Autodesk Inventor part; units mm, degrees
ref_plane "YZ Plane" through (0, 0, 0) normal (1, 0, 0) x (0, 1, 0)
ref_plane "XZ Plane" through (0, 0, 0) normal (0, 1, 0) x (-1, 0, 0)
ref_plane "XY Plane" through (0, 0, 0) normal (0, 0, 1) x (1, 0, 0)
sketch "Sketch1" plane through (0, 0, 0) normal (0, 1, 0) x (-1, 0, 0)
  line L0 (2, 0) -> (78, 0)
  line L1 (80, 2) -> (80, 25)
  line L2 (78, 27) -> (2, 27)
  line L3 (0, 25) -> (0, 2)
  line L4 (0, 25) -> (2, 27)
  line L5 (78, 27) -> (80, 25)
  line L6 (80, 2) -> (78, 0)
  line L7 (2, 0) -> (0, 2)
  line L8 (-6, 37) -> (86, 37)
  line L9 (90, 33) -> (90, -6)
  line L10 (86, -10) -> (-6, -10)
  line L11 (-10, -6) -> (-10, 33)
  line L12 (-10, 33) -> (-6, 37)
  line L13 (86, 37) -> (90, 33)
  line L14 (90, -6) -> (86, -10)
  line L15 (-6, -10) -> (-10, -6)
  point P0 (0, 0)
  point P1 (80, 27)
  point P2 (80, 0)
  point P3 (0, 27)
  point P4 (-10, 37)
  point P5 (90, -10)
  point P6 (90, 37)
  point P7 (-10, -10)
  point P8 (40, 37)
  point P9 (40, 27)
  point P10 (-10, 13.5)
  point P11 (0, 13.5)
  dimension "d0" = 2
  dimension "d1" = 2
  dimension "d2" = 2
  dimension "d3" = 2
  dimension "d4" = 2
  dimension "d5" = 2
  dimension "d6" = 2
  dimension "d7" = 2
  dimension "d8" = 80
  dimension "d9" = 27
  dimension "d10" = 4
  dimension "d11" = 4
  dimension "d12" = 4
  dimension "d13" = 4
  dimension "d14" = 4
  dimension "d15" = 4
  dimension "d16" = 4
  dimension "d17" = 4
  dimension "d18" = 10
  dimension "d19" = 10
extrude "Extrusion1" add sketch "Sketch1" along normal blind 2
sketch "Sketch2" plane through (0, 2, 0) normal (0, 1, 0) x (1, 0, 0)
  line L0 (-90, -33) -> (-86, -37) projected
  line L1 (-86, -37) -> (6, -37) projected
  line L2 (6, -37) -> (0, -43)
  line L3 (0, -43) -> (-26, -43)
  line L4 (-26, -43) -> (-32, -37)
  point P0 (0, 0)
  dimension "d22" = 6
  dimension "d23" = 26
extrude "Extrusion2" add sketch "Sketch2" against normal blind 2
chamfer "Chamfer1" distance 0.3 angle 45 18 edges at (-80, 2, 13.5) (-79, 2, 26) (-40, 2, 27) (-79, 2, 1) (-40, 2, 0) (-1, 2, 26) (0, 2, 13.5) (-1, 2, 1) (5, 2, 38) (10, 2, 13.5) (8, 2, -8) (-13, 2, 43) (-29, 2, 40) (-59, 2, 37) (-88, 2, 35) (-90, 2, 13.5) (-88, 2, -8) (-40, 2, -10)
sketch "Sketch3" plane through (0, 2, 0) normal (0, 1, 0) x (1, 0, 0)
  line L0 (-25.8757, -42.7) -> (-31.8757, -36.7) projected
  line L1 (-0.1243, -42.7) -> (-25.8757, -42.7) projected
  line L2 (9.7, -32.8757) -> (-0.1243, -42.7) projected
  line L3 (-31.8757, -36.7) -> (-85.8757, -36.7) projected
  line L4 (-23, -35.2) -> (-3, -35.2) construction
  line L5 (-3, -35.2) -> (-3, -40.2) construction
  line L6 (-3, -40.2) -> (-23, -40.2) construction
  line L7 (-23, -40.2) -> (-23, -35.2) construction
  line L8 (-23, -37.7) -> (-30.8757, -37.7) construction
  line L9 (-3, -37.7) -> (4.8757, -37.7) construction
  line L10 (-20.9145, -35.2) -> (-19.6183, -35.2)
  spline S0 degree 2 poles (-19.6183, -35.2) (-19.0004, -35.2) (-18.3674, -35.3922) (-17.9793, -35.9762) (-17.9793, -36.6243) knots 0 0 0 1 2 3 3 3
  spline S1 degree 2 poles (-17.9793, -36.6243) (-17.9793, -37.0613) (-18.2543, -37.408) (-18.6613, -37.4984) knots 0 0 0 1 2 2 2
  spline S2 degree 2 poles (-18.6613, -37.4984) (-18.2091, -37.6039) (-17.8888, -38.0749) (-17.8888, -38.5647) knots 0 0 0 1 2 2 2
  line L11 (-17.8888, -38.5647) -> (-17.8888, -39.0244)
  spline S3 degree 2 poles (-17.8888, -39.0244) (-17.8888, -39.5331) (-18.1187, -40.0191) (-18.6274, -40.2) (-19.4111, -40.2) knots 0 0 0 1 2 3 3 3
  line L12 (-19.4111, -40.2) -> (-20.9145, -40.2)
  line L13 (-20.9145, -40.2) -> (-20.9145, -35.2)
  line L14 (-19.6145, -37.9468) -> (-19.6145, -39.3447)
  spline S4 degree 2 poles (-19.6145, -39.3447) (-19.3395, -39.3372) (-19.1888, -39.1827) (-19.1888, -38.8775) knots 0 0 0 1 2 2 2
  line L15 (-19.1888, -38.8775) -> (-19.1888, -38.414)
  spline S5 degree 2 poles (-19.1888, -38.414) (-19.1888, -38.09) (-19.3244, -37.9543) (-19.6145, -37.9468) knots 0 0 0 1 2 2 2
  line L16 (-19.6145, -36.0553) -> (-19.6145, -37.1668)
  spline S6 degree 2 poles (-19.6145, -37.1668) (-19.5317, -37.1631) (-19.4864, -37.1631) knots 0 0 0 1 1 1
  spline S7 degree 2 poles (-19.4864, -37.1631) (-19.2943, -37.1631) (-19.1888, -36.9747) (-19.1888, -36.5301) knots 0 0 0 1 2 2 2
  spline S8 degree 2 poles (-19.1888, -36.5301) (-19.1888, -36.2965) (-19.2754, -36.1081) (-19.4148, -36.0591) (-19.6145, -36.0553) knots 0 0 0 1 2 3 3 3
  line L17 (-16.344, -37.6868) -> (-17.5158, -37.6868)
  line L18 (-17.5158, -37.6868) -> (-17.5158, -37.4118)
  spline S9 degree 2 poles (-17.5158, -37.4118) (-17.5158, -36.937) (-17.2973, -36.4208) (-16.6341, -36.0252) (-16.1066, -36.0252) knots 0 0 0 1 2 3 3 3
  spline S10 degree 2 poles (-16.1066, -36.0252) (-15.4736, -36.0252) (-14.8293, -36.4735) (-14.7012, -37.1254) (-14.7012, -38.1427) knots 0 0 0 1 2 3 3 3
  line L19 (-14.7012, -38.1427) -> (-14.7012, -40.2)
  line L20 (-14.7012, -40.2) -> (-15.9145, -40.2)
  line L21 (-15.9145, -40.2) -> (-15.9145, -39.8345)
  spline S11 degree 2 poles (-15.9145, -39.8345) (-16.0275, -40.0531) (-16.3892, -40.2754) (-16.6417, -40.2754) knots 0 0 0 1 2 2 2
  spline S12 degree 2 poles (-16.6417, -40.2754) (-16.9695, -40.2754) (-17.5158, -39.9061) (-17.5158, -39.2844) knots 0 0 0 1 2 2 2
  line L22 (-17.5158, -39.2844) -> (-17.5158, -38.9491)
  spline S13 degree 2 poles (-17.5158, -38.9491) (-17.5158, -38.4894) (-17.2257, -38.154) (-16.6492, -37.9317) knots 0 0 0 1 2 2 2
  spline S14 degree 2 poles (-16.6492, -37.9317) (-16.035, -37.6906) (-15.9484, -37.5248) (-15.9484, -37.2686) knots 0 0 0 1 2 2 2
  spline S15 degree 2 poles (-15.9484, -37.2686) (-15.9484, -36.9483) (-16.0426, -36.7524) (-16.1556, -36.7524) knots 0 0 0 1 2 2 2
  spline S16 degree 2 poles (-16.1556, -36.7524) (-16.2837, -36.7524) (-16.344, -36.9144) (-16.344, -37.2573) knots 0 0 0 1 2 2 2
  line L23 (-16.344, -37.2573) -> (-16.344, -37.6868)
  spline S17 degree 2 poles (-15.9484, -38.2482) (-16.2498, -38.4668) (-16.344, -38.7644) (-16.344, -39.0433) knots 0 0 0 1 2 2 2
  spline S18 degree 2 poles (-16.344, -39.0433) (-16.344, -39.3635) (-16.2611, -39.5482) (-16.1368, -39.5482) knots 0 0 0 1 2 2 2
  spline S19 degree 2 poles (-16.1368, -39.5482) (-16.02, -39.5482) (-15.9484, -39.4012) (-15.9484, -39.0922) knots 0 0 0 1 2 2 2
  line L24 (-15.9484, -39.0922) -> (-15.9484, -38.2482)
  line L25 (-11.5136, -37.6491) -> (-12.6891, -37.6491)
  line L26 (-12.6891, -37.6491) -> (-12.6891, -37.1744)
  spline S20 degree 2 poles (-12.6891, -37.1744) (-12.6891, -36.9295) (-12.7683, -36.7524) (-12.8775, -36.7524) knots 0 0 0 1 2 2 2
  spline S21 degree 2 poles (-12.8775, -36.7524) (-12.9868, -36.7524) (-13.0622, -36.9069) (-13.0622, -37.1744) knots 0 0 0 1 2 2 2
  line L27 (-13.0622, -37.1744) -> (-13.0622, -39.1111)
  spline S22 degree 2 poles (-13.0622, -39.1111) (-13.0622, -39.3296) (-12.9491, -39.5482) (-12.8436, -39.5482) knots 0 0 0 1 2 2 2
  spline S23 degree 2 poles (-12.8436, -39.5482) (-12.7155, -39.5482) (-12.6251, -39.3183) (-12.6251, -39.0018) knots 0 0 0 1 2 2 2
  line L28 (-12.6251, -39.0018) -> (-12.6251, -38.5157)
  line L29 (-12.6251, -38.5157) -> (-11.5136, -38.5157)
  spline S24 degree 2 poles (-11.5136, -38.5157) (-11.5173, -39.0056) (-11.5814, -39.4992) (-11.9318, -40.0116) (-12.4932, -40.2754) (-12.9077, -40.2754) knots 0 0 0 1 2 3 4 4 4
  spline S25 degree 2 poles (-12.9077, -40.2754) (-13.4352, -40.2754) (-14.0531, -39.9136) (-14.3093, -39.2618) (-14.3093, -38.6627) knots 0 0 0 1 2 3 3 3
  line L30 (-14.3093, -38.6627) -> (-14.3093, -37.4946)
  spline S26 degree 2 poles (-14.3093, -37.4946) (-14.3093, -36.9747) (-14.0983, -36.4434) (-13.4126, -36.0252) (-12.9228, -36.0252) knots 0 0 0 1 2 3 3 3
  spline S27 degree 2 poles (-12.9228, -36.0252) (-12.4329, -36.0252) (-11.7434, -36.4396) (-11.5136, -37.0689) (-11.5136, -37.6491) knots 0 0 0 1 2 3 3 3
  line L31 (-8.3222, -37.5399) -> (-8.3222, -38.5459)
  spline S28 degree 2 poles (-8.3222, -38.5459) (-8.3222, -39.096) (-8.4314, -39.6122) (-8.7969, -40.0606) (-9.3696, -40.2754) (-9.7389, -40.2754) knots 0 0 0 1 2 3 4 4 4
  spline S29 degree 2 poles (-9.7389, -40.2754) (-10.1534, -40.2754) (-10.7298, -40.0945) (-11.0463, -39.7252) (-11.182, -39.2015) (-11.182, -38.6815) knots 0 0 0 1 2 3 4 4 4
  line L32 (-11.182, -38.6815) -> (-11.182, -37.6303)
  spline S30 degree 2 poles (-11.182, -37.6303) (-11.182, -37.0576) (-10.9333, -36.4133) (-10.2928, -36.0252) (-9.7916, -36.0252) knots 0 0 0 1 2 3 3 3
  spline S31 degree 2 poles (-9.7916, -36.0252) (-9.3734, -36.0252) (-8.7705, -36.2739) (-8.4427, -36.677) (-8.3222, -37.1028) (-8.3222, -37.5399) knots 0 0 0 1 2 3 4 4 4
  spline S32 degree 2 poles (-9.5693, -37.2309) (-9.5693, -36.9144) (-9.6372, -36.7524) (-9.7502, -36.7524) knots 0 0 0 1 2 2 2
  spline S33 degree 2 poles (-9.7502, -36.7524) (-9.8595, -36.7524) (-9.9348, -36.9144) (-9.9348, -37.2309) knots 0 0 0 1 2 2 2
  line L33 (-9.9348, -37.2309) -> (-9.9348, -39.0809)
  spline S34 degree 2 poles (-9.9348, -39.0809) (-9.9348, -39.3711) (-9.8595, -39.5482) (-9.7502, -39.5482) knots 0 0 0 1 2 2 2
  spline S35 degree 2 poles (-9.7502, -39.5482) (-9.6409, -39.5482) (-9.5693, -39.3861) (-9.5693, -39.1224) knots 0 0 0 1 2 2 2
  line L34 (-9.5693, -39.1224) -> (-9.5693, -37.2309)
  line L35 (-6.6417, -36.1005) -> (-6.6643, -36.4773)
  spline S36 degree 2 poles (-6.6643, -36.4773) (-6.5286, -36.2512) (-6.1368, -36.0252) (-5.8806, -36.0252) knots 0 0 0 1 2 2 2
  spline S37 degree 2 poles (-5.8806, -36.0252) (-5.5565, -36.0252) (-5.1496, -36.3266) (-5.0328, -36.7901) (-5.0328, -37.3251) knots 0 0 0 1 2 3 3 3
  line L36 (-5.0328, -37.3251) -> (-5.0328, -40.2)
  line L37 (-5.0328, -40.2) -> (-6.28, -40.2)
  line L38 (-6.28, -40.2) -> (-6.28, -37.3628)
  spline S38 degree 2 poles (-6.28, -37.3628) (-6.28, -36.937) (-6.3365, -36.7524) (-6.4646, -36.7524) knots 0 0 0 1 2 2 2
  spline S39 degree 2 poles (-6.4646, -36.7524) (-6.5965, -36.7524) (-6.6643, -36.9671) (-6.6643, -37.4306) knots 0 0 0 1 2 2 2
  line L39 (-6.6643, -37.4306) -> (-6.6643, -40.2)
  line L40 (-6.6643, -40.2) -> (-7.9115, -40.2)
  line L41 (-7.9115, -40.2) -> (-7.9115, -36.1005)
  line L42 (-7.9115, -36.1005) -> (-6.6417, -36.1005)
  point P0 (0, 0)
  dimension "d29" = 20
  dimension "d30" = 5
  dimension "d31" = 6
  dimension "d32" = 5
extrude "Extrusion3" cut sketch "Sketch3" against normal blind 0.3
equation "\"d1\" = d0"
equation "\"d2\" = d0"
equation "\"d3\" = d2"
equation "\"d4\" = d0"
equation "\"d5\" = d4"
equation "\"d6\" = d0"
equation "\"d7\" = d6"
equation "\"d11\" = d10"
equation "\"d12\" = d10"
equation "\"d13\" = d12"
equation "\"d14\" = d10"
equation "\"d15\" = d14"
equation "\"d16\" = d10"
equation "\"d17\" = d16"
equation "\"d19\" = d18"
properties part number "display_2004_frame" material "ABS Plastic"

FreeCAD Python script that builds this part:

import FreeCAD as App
import Part
import Sketcher
from FreeCAD import Vector
Q = App.Units.Quantity


def edges_at(feature, points):
    """Names of the edges that pass closest to the given points."""
    edges = feature.Shape.Edges
    near = lambda p: min(range(len(edges)), key=lambda i: edges[i].distToShape(Part.Vertex(*p))[0])
    return sorted({f"Edge{near(p) + 1}" for p in points})

doc = App.newDocument("Part")
body = doc.addObject("PartDesign::Body", "Body")

# Sketch on XZ plane
sketch1 = body.newObject("Sketcher::SketchObject", "Sketch")
sketch1.AttachmentSupport = (doc.getObject("XZ_Plane"), [""])
sketch1.MapMode = "FlatFace"
sketch1.addGeometry([
    Part.LineSegment(Vector(-86, 37, 0), Vector(6, 37, 0)),  # 0
    Part.LineSegment(Vector(6, 37, 0), Vector(10, 33, 0)),  # 1
    Part.LineSegment(Vector(10, 33, 0), Vector(10, -6, 0)),  # 2
    Part.LineSegment(Vector(10, -6, 0), Vector(6, -10, 0)),  # 3
    Part.LineSegment(Vector(6, -10, 0), Vector(-86, -10, 0)),  # 4
    Part.LineSegment(Vector(-86, -10, 0), Vector(-90, -6, 0)),  # 5
    Part.LineSegment(Vector(-90, -6, 0), Vector(-90, 33, 0)),  # 6
    Part.LineSegment(Vector(-90, 33, 0), Vector(-86, 37, 0)),  # 7
    Part.LineSegment(Vector(-78, 0, 0), Vector(-2, 0, 0)),  # 8
    Part.LineSegment(Vector(-2, 0, 0), Vector(0, 2, 0)),  # 9
    Part.LineSegment(Vector(0, 2, 0), Vector(0, 25, 0)),  # 10
    Part.LineSegment(Vector(0, 25, 0), Vector(-2, 27, 0)),  # 11
    Part.LineSegment(Vector(-2, 27, 0), Vector(-78, 27, 0)),  # 12
    Part.LineSegment(Vector(-78, 27, 0), Vector(-80, 25, 0)),  # 13
    Part.LineSegment(Vector(-80, 25, 0), Vector(-80, 2, 0)),  # 14
    Part.LineSegment(Vector(-80, 2, 0), Vector(-78, 0, 0)),  # 15
], False)
sketch1.addConstraint([
    Sketcher.Constraint("Coincident", 0, 2, 1, 1),
    Sketcher.Constraint("Coincident", 1, 2, 2, 1),
    Sketcher.Constraint("Coincident", 2, 2, 3, 1),
    Sketcher.Constraint("Coincident", 3, 2, 4, 1),
    Sketcher.Constraint("Coincident", 4, 2, 5, 1),
    Sketcher.Constraint("Coincident", 5, 2, 6, 1),
    Sketcher.Constraint("Coincident", 6, 2, 7, 1),
    Sketcher.Constraint("Coincident", 7, 2, 0, 1),
    Sketcher.Constraint("Coincident", 8, 2, 9, 1),
    Sketcher.Constraint("Coincident", 9, 2, 10, 1),
    Sketcher.Constraint("Coincident", 10, 2, 11, 1),
    Sketcher.Constraint("Coincident", 11, 2, 12, 1),
    Sketcher.Constraint("Coincident", 12, 2, 13, 1),
    Sketcher.Constraint("Coincident", 13, 2, 14, 1),
    Sketcher.Constraint("Coincident", 14, 2, 15, 1),
    Sketcher.Constraint("Coincident", 15, 2, 8, 1),
    Sketcher.Constraint("Horizontal", 0),
    Sketcher.Constraint("Vertical", 2),
    Sketcher.Constraint("Horizontal", 4),
    Sketcher.Constraint("Vertical", 6),
    Sketcher.Constraint("Horizontal", 8),
    Sketcher.Constraint("Vertical", 10),
    Sketcher.Constraint("Horizontal", 12),
    Sketcher.Constraint("Vertical", 14),
    Sketcher.Constraint("PointOnObject", 8, 2, -1),
    Sketcher.Constraint("PointOnObject", 9, 2, -2),
    Sketcher.Constraint("Perpendicular", 1, 3),
    Sketcher.Constraint("Perpendicular", 3, 5),
    Sketcher.Constraint("Perpendicular", 5, 7),
    Sketcher.Constraint("Parallel", 7, 9),
    Sketcher.Constraint("Perpendicular", 9, 11),
    Sketcher.Constraint("Perpendicular", 11, 13),
    Sketcher.Constraint("Perpendicular", 13, 15),
    Sketcher.Constraint("Horizontal", 2, 2, 5, 2),
    Sketcher.Constraint("Horizontal", 1, 2, 6, 2),
    Sketcher.Constraint("Horizontal", 10, 2, 13, 2),
    Sketcher.Constraint("Horizontal", 9, 2, 14, 2),
    Sketcher.Constraint("Vertical", 0, 2, 3, 2),
    Sketcher.Constraint("Vertical", 4, 2, 7, 2),
    Sketcher.Constraint("Vertical", 8, 2, 11, 2),
    Sketcher.Constraint("DistanceX", -1, 1, 1, 2, Q("10 mm")),
    Sketcher.Constraint("DistanceY", 3, 2, -1, 1, Q("10 mm")),
    Sketcher.Constraint("DistanceX", 8, 2, -1, 1, Q("2 mm")),
    Sketcher.Constraint("DistanceY", -1, 1, 11, 2, Q("27 mm")),
    Sketcher.Constraint("DistanceX", 13, 2, -1, 1, Q("80 mm")),
    Sketcher.Constraint("DistanceX", 0, 2, 1, 2, Q("4 mm")),
    Sketcher.Constraint("DistanceY", 11, 2, 0, 2, Q("10 mm")),
    Sketcher.Constraint("DistanceX", 6, 2, 13, 2, Q("10 mm")),
])
pad1 = body.newObject("PartDesign::Pad", "Pad")
pad1.Profile = sketch1
pad1.Length = 2
pad1.Reversed = True

# Sketch on XZ plane
sketch2 = body.newObject("Sketcher::SketchObject", "Sketch001")
sketch2.AttachmentSupport = (doc.getObject("XZ_Plane"), [""])
sketch2.MapMode = "FlatFace"
sketch2.AttachmentOffset = App.Placement(Vector(0, 0, -2), App.Rotation())
sketch2.addGeometry([
    Part.LineSegment(Vector(6, 37, 0), Vector(-32, 37, 0)),
    Part.LineSegment(Vector(-32, 37, 0), Vector(-26, 43, 0)),
    Part.LineSegment(Vector(-26, 43, 0), Vector(0, 43, 0)),
    Part.LineSegment(Vector(0, 43, 0), Vector(6, 37, 0)),
], False)
sketch2.addConstraint([
    Sketcher.Constraint("Coincident", 0, 2, 1, 1),
    Sketcher.Constraint("Coincident", 1, 2, 2, 1),
    Sketcher.Constraint("Coincident", 2, 2, 3, 1),
    Sketcher.Constraint("Coincident", 3, 2, 0, 1),
    Sketcher.Constraint("Horizontal", 0),
    Sketcher.Constraint("Horizontal", 2),
    Sketcher.Constraint("PointOnObject", 2, 2, -2),
    Sketcher.Constraint("Perpendicular", 1, 3),
    Sketcher.Constraint("Equal", 1, 3),
    Sketcher.Constraint("DistanceX", 2, 1, 2, 2, Q("26 mm")),
    Sketcher.Constraint("DistanceX", -1, 1, 3, 2, Q("6 mm")),
    Sketcher.Constraint("DistanceY", -1, 1, 0, 2, Q("37 mm")),
])
pad2 = body.newObject("PartDesign::Pad", "Pad001")
pad2.Profile = sketch2
pad2.Length = 2
doc.recompute()

chamfer = body.newObject("PartDesign::Chamfer", "Chamfer")
chamfer.Base = (pad2, edges_at(pad2, [
    (-80, 2, 13.5),
    (-79, 2, 26),
    (-40, 2, 27),
    (-79, 2, 1),
    (-40, 2, 0),
    (-1, 2, 26),
    (0, 2, 13.5),
    (-1, 2, 1),
    (5, 2, 38),
    (10, 2, 13.5),
    (8, 2, -8),
    (-13, 2, 43),
    (-29, 2, 40),
    (-59, 2, 37),
    (-88, 2, 35),
    (-90, 2, 13.5),
    (-88, 2, -8),
    (-40, 2, -10),
]))
chamfer.Size = 0.3

# Sketch on XZ plane
sketch3 = body.newObject("Sketcher::SketchObject", "Sketch002")
sketch3.AttachmentSupport = (doc.getObject("XZ_Plane"), [""])
sketch3.MapMode = "FlatFace"
sketch3.AttachmentOffset = App.Placement(Vector(0, 0, -2), App.Rotation())
sketch3.addGeometry([
    Part.LineSegment(Vector(-19.6183, 35.2, 0), Vector(-20.9145, 35.2, 0)),  # 0
    Part.LineSegment(Vector(-20.9145, 35.2, 0), Vector(-20.9145, 40.2, 0)),  # 1
    Part.LineSegment(Vector(-20.9145, 40.2, 0), Vector(-19.4111, 40.2, 0)),  # 2
    Part.BSplineCurve([Vector(-17.8888, 39.0244, 0), Vector(-17.8888, 39.5331, 0), Vector(-18.1187, 40.0191, 0), Vector(-18.6274, 40.2, 0), Vector(-19.4111, 40.2, 0)], [3, 1, 1, 3], [0, 1, 2, 3], False, 2, [1, 1, 1, 1, 1], False),  # 3
    Part.LineSegment(Vector(-17.8888, 39.0244, 0), Vector(-17.8888, 38.5647, 0)),  # 4
    Part.BSplineCurve([Vector(-18.6613, 37.4984, 0), Vector(-18.2091, 37.6039, 0), Vector(-17.8888, 38.0749, 0), Vector(-17.8888, 38.5647, 0)], [3, 1, 3], [0, 1, 2], False, 2, [1, 1, 1, 1], False),  # 5
    Part.BSplineCurve([Vector(-17.9793, 36.6243, 0), Vector(-17.9793, 37.0613, 0), Vector(-18.2543, 37.408, 0), Vector(-18.6613, 37.4984, 0)], [3, 1, 3], [0, 1, 2], False, 2, [1, 1, 1, 1], False),  # 6
    Part.BSplineCurve([Vector(-19.6183, 35.2, 0), Vector(-19.0004, 35.2, 0), Vector(-18.3674, 35.3922, 0), Vector(-17.9793, 35.9762, 0), Vector(-17.9793, 36.6243, 0)], [3, 1, 1, 3], [0, 1, 2, 3], False, 2, [1, 1, 1, 1, 1], False),  # 7
    Part.LineSegment(Vector(-19.6145, 39.3447, 0), Vector(-19.6145, 37.9468, 0)),  # 8
    Part.BSplineCurve([Vector(-19.1888, 38.414, 0), Vector(-19.1888, 38.09, 0), Vector(-19.3244, 37.9543, 0), Vector(-19.6145, 37.9468, 0)], [3, 1, 3], [0, 1, 2], False, 2, [1, 1, 1, 1], False),  # 9
    Part.LineSegment(Vector(-19.1888, 38.414, 0), Vector(-19.1888, 38.8775, 0)),  # 10
    Part.BSplineCurve([Vector(-19.6145, 39.3447, 0), Vector(-19.3395, 39.3372, 0), Vector(-19.1888, 39.1827, 0), Vector(-19.1888, 38.8775, 0)], [3, 1, 3], [0, 1, 2], False, 2, [1, 1, 1, 1], False),  # 11
    Part.LineSegment(Vector(-19.6145, 37.1668, 0), Vector(-19.6145, 36.0553, 0)),  # 12
    Part.BSplineCurve([Vector(-19.1888, 36.5301, 0), Vector(-19.1888, 36.2965, 0), Vector(-19.2754, 36.1081, 0), Vector(-19.4148, 36.0591, 0), Vector(-19.6145, 36.0553, 0)], [3, 1, 1, 3], [0, 1, 2, 3], False, 2, [1, 1, 1, 1, 1], False),  # 13
    Part.BSplineCurve([Vector(-19.4864, 37.1631, 0), Vector(-19.2943, 37.1631, 0), Vector(-19.1888, 36.9747, 0), Vector(-19.1888, 36.5301, 0)], [3, 1, 3], [0, 1, 2], False, 2, [1, 1, 1, 1], False),  # 14
    Part.BSplineCurve([Vector(-19.6145, 37.1668, 0), Vector(-19.5317, 37.1631, 0), Vector(-19.4864, 37.1631, 0)], [3, 3], [0, 1], False, 2, [1, 1, 1], False),  # 15
    Part.LineSegment(Vector(-17.5158, 37.6868, 0), Vector(-16.344, 37.6868, 0)),  # 16
    Part.LineSegment(Vector(-16.344, 37.6868, 0), Vector(-16.344, 37.2573, 0)),  # 17
    Part.BSplineCurve([Vector(-16.1556, 36.7524, 0), Vector(-16.2837, 36.7524, 0), Vector(-16.344, 36.9144, 0), Vector(-16.344, 37.2573, 0)], [3, 1, 3], [0, 1, 2], False, 2, [1, 1, 1, 1], False),  # 18
    Part.BSplineCurve([Vector(-15.9484, 37.2686, 0), Vector(-15.9484, 36.9483, 0), Vector(-16.0426, 36.7524, 0), Vector(-16.1556, 36.7524, 0)], [3, 1, 3], [0, 1, 2], False, 2, [1, 1, 1, 1], False),  # 19
    Part.BSplineCurve([Vector(-16.6492, 37.9317, 0), Vector(-16.035, 37.6906, 0), Vector(-15.9484, 37.5248, 0), Vector(-15.9484, 37.2686, 0)], [3, 1, 3], [0, 1, 2], False, 2, [1, 1, 1, 1], False),  # 20
    Part.BSplineCurve([Vector(-17.5158, 38.9491, 0), Vector(-17.5158, 38.4894, 0), Vector(-17.2257, 38.154, 0), Vector(-16.6492, 37.9317, 0)], [3, 1, 3], [0, 1, 2], False, 2, [1, 1, 1, 1], False),  # 21
    Part.LineSegment(Vector(-17.5158, 38.9491, 0), Vector(-17.5158, 39.2844, 0)),  # 22
    Part.BSplineCurve([Vector(-16.6417, 40.2754, 0), Vector(-16.9695, 40.2754, 0), Vector(-17.5158, 39.9061, 0), Vector(-17.5158, 39.2844, 0)], [3, 1, 3], [0, 1, 2], False, 2, [1, 1, 1, 1], False),  # 23
    Part.BSplineCurve([Vector(-15.9145, 39.8345, 0), Vector(-16.0275, 40.0531, 0), Vector(-16.3892, 40.2754, 0), Vector(-16.6417, 40.2754, 0)], [3, 1, 3], [0, 1, 2], False, 2, [1, 1, 1, 1], False),  # 24
    Part.LineSegment(Vector(-15.9145, 39.8345, 0), Vector(-15.9145, 40.2, 0)),  # 25
    Part.LineSegment(Vector(-15.9145, 40.2, 0), Vector(-14.7012, 40.2, 0)),  # 26
    Part.LineSegment(Vector(-14.7012, 40.2, 0), Vector(-14.7012, 38.1427, 0)),  # 27
    Part.BSplineCurve([Vector(-16.1066, 36.0252, 0), Vector(-15.4736, 36.0252, 0), Vector(-14.8293, 36.4735, 0), Vector(-14.7012, 37.1254, 0), Vector(-14.7012, 38.1427, 0)], [3, 1, 1, 3], [0, 1, 2, 3], False, 2, [1, 1, 1, 1, 1], False),  # 28
    Part.BSplineCurve([Vector(-17.5158, 37.4118, 0), Vector(-17.5158, 36.937, 0), Vector(-17.2973, 36.4208, 0), Vector(-16.6341, 36.0252, 0), Vector(-16.1066, 36.0252, 0)], [3, 1, 1, 3], [0, 1, 2, 3], False, 2, [1, 1, 1, 1, 1], False),  # 29
    Part.LineSegment(Vector(-17.5158, 37.4118, 0), Vector(-17.5158, 37.6868, 0)),  # 30
    Part.BSplineCurve([Vector(-15.9484, 38.2482, 0), Vector(-16.2498, 38.4668, 0), Vector(-16.344, 38.7644, 0), Vector(-16.344, 39.0433, 0)], [3, 1, 3], [0, 1, 2], False, 2, [1, 1, 1, 1], False),  # 31
    Part.LineSegment(Vector(-15.9484, 38.2482, 0), Vector(-15.9484, 39.0922, 0)),  # 32
    Part.BSplineCurve([Vector(-16.1368, 39.5482, 0), Vector(-16.02, 39.5482, 0), Vector(-15.9484, 39.4012, 0), Vector(-15.9484, 39.0922, 0)], [3, 1, 3], [0, 1, 2], False, 2, [1, 1, 1, 1], False),  # 33
    Part.BSplineCurve([Vector(-16.344, 39.0433, 0), Vector(-16.344, 39.3635, 0), Vector(-16.2611, 39.5482, 0), Vector(-16.1368, 39.5482, 0)], [3, 1, 3], [0, 1, 2], False, 2, [1, 1, 1, 1], False),  # 34
    Part.LineSegment(Vector(-12.6891, 37.6491, 0), Vector(-11.5136, 37.6491, 0)),  # 35
    Part.BSplineCurve([Vector(-12.9228, 36.0252, 0), Vector(-12.4329, 36.0252, 0), Vector(-11.7434, 36.4396, 0), Vector(-11.5136, 37.0689, 0), Vector(-11.5136, 37.6491, 0)], [3, 1, 1, 3], [0, 1, 2, 3], False, 2, [1, 1, 1, 1, 1], False),  # 36
    Part.BSplineCurve([Vector(-14.3093, 37.4946, 0), Vector(-14.3093, 36.9747, 0), Vector(-14.0983, 36.4434, 0), Vector(-13.4126, 36.0252, 0), Vector(-12.9228, 36.0252, 0)], [3, 1, 1, 3], [0, 1, 2, 3], False, 2, [1, 1, 1, 1, 1], False),  # 37
    Part.LineSegment(Vector(-14.3093, 37.4946, 0), Vector(-14.3093, 38.6627, 0)),  # 38
    Part.BSplineCurve([Vector(-12.9077, 40.2754, 0), Vector(-13.4352, 40.2754, 0), Vector(-14.0531, 39.9136, 0), Vector(-14.3093, 39.2618, 0), Vector(-14.3093, 38.6627, 0)], [3, 1, 1, 3], [0, 1, 2, 3], False, 2, [1, 1, 1, 1, 1], False),  # 39
    Part.BSplineCurve([Vector(-11.5136, 38.5157, 0), Vector(-11.5173, 39.0056, 0), Vector(-11.5814, 39.4992, 0), Vector(-11.9318, 40.0116, 0), Vector(-12.4932, 40.2754, 0), Vector(-12.9077, 40.2754, 0)], [3, 1, 1, 1, 3], [0, 1, 2, 3, 4], False, 2, [1, 1, 1, 1, 1, 1], False),  # 40
    Part.LineSegment(Vector(-11.5136, 38.5157, 0), Vector(-12.6251, 38.5157, 0)),  # 41
    Part.LineSegment(Vector(-12.6251, 38.5157, 0), Vector(-12.6251, 39.0018, 0)),  # 42
    Part.BSplineCurve([Vector(-12.8436, 39.5482, 0), Vector(-12.7155, 39.5482, 0), Vector(-12.6251, 39.3183, 0), Vector(-12.6251, 39.0018, 0)], [3, 1, 3], [0, 1, 2], False, 2, [1, 1, 1, 1], False),  # 43
    Part.BSplineCurve([Vector(-13.0622, 39.1111, 0), Vector(-13.0622, 39.3296, 0), Vector(-12.9491, 39.5482, 0), Vector(-12.8436, 39.5482, 0)], [3, 1, 3], [0, 1, 2], False, 2, [1, 1, 1, 1], False),  # 44
    Part.LineSegment(Vector(-13.0622, 39.1111, 0), Vector(-13.0622, 37.1744, 0)),  # 45
    Part.BSplineCurve([Vector(-12.8775, 36.7524, 0), Vector(-12.9868, 36.7524, 0), Vector(-13.0622, 36.9069, 0), Vector(-13.0622, 37.1744, 0)], [3, 1, 3], [0, 1, 2], False, 2, [1, 1, 1, 1], False),  # 46
    Part.BSplineCurve([Vector(-12.6891, 37.1744, 0), Vector(-12.6891, 36.9295, 0), Vector(-12.7683, 36.7524, 0), Vector(-12.8775, 36.7524, 0)], [3, 1, 3], [0, 1, 2], False, 2, [1, 1, 1, 1], False),  # 47
    Part.LineSegment(Vector(-12.6891, 37.1744, 0), Vector(-12.6891, 37.6491, 0)),  # 48
    Part.LineSegment(Vector(-8.3222, 38.5459, 0), Vector(-8.3222, 37.5399, 0)),  # 49
    Part.BSplineCurve([Vector(-9.7916, 36.0252, 0), Vector(-9.3734, 36.0252, 0), Vector(-8.7705, 36.2739, 0), Vector(-8.4427, 36.677, 0), Vector(-8.3222, 37.1028, 0), Vector(-8.3222, 37.5399, 0)], [3, 1, 1, 1, 3], [0, 1, 2, 3, 4], False, 2, [1, 1, 1, 1, 1, 1], False),  # 50
    Part.BSplineCurve([Vector(-11.182, 37.6303, 0), Vector(-11.182, 37.0576, 0), Vector(-10.9333, 36.4133, 0), Vector(-10.2928, 36.0252, 0), Vector(-9.7916, 36.0252, 0)], [3, 1, 1, 3], [0, 1, 2, 3], False, 2, [1, 1, 1, 1, 1], False),  # 51
    Part.LineSegment(Vector(-11.182, 37.6303, 0), Vector(-11.182, 38.6815, 0)),  # 52
    Part.BSplineCurve([Vector(-9.7389, 40.2754, 0), Vector(-10.1534, 40.2754, 0), Vector(-10.7298, 40.0945, 0), Vector(-11.0463, 39.7252, 0), Vector(-11.182, 39.2015, 0), Vector(-11.182, 38.6815, 0)], [3, 1, 1, 1, 3], [0, 1, 2, 3, 4], False, 2, [1, 1, 1, 1, 1, 1], False),  # 53
    Part.BSplineCurve([Vector(-8.3222, 38.5459, 0), Vector(-8.3222, 39.096, 0), Vector(-8.4314, 39.6122, 0), Vector(-8.7969, 40.0606, 0), Vector(-9.3696, 40.2754, 0), Vector(-9.7389, 40.2754, 0)], [3, 1, 1, 1, 3], [0, 1, 2, 3, 4], False, 2, [1, 1, 1, 1, 1, 1], False),  # 54
    Part.BSplineCurve([Vector(-9.5693, 37.2309, 0), Vector(-9.5693, 36.9144, 0), Vector(-9.6372, 36.7524, 0), Vector(-9.7502, 36.7524, 0)], [3, 1, 3], [0, 1, 2], False, 2, [1, 1, 1, 1], False),  # 55
    Part.LineSegment(Vector(-9.5693, 37.2309, 0), Vector(-9.5693, 39.1224, 0)),  # 56
    Part.BSplineCurve([Vector(-9.7502, 39.5482, 0), Vector(-9.6409, 39.5482, 0), Vector(-9.5693, 39.3861, 0), Vector(-9.5693, 39.1224, 0)], [3, 1, 3], [0, 1, 2], False, 2, [1, 1, 1, 1], False),  # 57
    Part.BSplineCurve([Vector(-9.9348, 39.0809, 0), Vector(-9.9348, 39.3711, 0), Vector(-9.8595, 39.5482, 0), Vector(-9.7502, 39.5482, 0)], [3, 1, 3], [0, 1, 2], False, 2, [1, 1, 1, 1], False),  # 58
    Part.LineSegment(Vector(-9.9348, 39.0809, 0), Vector(-9.9348, 37.2309, 0)),  # 59
    Part.BSplineCurve([Vector(-9.7502, 36.7524, 0), Vector(-9.8595, 36.7524, 0), Vector(-9.9348, 36.9144, 0), Vector(-9.9348, 37.2309, 0)], [3, 1, 3], [0, 1, 2], False, 2, [1, 1, 1, 1], False),  # 60
    Part.LineSegment(Vector(-6.6643, 36.4773, 0), Vector(-6.6417, 36.1005, 0)),  # 61
    Part.LineSegment(Vector(-6.6417, 36.1005, 0), Vector(-7.9115, 36.1005, 0)),  # 62
    Part.LineSegment(Vector(-7.9115, 36.1005, 0), Vector(-7.9115, 40.2, 0)),  # 63
    Part.LineSegment(Vector(-7.9115, 40.2, 0), Vector(-6.6643, 40.2, 0)),  # 64
    Part.LineSegment(Vector(-6.6643, 40.2, 0), Vector(-6.6643, 37.4306, 0)),  # 65
    Part.BSplineCurve([Vector(-6.4646, 36.7524, 0), Vector(-6.5965, 36.7524, 0), Vector(-6.6643, 36.9671, 0), Vector(-6.6643, 37.4306, 0)], [3, 1, 3], [0, 1, 2], False, 2, [1, 1, 1, 1], False),  # 66
    Part.BSplineCurve([Vector(-6.28, 37.3628, 0), Vector(-6.28, 36.937, 0), Vector(-6.3365, 36.7524, 0), Vector(-6.4646, 36.7524, 0)], [3, 1, 3], [0, 1, 2], False, 2, [1, 1, 1, 1], False),  # 67
    Part.LineSegment(Vector(-6.28, 37.3628, 0), Vector(-6.28, 40.2, 0)),  # 68
    Part.LineSegment(Vector(-6.28, 40.2, 0), Vector(-5.0328, 40.2, 0)),  # 69
    Part.LineSegment(Vector(-5.0328, 40.2, 0), Vector(-5.0328, 37.3251, 0)),  # 70
    Part.BSplineCurve([Vector(-5.8806, 36.0252, 0), Vector(-5.5565, 36.0252, 0), Vector(-5.1496, 36.3266, 0), Vector(-5.0328, 36.7901, 0), Vector(-5.0328, 37.3251, 0)], [3, 1, 1, 3], [0, 1, 2, 3], False, 2, [1, 1, 1, 1, 1], False),  # 71
    Part.BSplineCurve([Vector(-6.6643, 36.4773, 0), Vector(-6.5286, 36.2512, 0), Vector(-6.1368, 36.0252, 0), Vector(-5.8806, 36.0252, 0)], [3, 1, 3], [0, 1, 2], False, 2, [1, 1, 1, 1], False),  # 72
], False)
sketch3.addConstraint([
    Sketcher.Constraint("Block", 3),
    Sketcher.Constraint("Block", 5),
    Sketcher.Constraint("Block", 6),
    Sketcher.Constraint("Block", 7),
    Sketcher.Constraint("Block", 9),
    Sketcher.Constraint("Block", 11),
    Sketcher.Constraint("Block", 13),
    Sketcher.Constraint("Block", 14),
    Sketcher.Constraint("Block", 15),
    Sketcher.Constraint("Block", 18),
    Sketcher.Constraint("Block", 19),
    Sketcher.Constraint("Block", 20),
    Sketcher.Constraint("Block", 21),
    Sketcher.Constraint("Block", 23),
    Sketcher.Constraint("Block", 24),
    Sketcher.Constraint("Block", 28),
    Sketcher.Constraint("Block", 29),
    Sketcher.Constraint("Block", 31),
    Sketcher.Constraint("Block", 33),
    Sketcher.Constraint("Block", 34),
    Sketcher.Constraint("Block", 36),
    Sketcher.Constraint("Block", 37),
    Sketcher.Constraint("Block", 39),
    Sketcher.Constraint("Block", 40),
    Sketcher.Constraint("Block", 43),
    Sketcher.Constraint("Block", 44),
    Sketcher.Constraint("Block", 46),
    Sketcher.Constraint("Block", 47),
    Sketcher.Constraint("Block", 50),
    Sketcher.Constraint("Block", 51),
    Sketcher.Constraint("Block", 53),
    Sketcher.Constraint("Block", 54),
    Sketcher.Constraint("Block", 55),
    Sketcher.Constraint("Block", 57),
    Sketcher.Constraint("Block", 58),
    Sketcher.Constraint("Block", 60),
    Sketcher.Constraint("Block", 66),
    Sketcher.Constraint("Block", 67),
    Sketcher.Constraint("Block", 71),
    Sketcher.Constraint("Block", 72),
    Sketcher.Constraint("Coincident", 0, 2, 1, 1),
    Sketcher.Constraint("Coincident", 1, 2, 2, 1),
    Sketcher.Constraint("Coincident", 2, 2, 3, 2),
    Sketcher.Constraint("Coincident", 3, 1, 4, 1),
    Sketcher.Constraint("Coincident", 4, 2, 5, 2),
    Sketcher.Constraint("Coincident", 7, 1, 0, 1),
    Sketcher.Constraint("Coincident", 8, 2, 9, 2),
    Sketcher.Constraint("Coincident", 9, 1, 10, 1),
    Sketcher.Constraint("Coincident", 10, 2, 11, 2),
    Sketcher.Constraint("Coincident", 11, 1, 8, 1),
    Sketcher.Constraint("Coincident", 12, 2, 13, 2),
    Sketcher.Constraint("Coincident", 15, 1, 12, 1),
    Sketcher.Constraint("Coincident", 16, 2, 17, 1),
    Sketcher.Constraint("Coincident", 17, 2, 18, 2),
    Sketcher.Constraint("Coincident", 21, 1, 22, 1),
    Sketcher.Constraint("Coincident", 22, 2, 23, 2),
    Sketcher.Constraint("Coincident", 24, 1, 25, 1),
    Sketcher.Constraint("Coincident", 25, 2, 26, 1),
    Sketcher.Constraint("Coincident", 26, 2, 27, 1),
    Sketcher.Constraint("Coincident", 27, 2, 28, 2),
    Sketcher.Constraint("Coincident", 29, 1, 30, 1),
    Sketcher.Constraint("Coincident", 30, 2, 16, 1),
    Sketcher.Constraint("Coincident", 31, 1, 32, 1),
    Sketcher.Constraint("Coincident", 32, 2, 33, 2),
    Sketcher.Constraint("Coincident", 35, 2, 36, 2),
    Sketcher.Constraint("Coincident", 37, 1, 38, 1),
    Sketcher.Constraint("Coincident", 38, 2, 39, 2),
    Sketcher.Constraint("Coincident", 40, 1, 41, 1),
    Sketcher.Constraint("Coincident", 41, 2, 42, 1),
    Sketcher.Constraint("Coincident", 42, 2, 43, 2),
    Sketcher.Constraint("Coincident", 44, 1, 45, 1),
    Sketcher.Constraint("Coincident", 45, 2, 46, 2),
    Sketcher.Constraint("Coincident", 47, 1, 48, 1),
    Sketcher.Constraint("Coincident", 48, 2, 35, 1),
    Sketcher.Constraint("Coincident", 49, 2, 50, 2),
    Sketcher.Constraint("Coincident", 51, 1, 52, 1),
    Sketcher.Constraint("Coincident", 52, 2, 53, 2),
    Sketcher.Constraint("Coincident", 54, 1, 49, 1),
    Sketcher.Constraint("Coincident", 55, 1, 56, 1),
    Sketcher.Constraint("Coincident", 56, 2, 57, 2),
    Sketcher.Constraint("Coincident", 58, 1, 59, 1),
    Sketcher.Constraint("Coincident", 59, 2, 60, 2),
    Sketcher.Constraint("Coincident", 61, 2, 62, 1),
    Sketcher.Constraint("Coincident", 62, 2, 63, 1),
    Sketcher.Constraint("Coincident", 63, 2, 64, 1),
    Sketcher.Constraint("Coincident", 64, 2, 65, 1),
    Sketcher.Constraint("Coincident", 65, 2, 66, 2),
    Sketcher.Constraint("Coincident", 67, 1, 68, 1),
    Sketcher.Constraint("Coincident", 68, 2, 69, 1),
    Sketcher.Constraint("Coincident", 69, 2, 70, 1),
    Sketcher.Constraint("Coincident", 70, 2, 71, 2),
    Sketcher.Constraint("Coincident", 72, 1, 61, 1),
    Sketcher.Constraint("Horizontal", 0),
    Sketcher.Constraint("Vertical", 1),
    Sketcher.Constraint("Horizontal", 2),
    Sketcher.Constraint("Horizontal", 16),
    Sketcher.Constraint("Vertical", 17),
    Sketcher.Constraint("Vertical", 25),
    Sketcher.Constraint("Horizontal", 26),
    Sketcher.Constraint("Vertical", 27),
    Sketcher.Constraint("Vertical", 30),
    Sketcher.Constraint("Horizontal", 35),
    Sketcher.Constraint("Horizontal", 41),
    Sketcher.Constraint("Vertical", 42),
    Sketcher.Constraint("Vertical", 48),
    Sketcher.Constraint("Horizontal", 62),
    Sketcher.Constraint("Vertical", 63),
    Sketcher.Constraint("Horizontal", 64),
    Sketcher.Constraint("Vertical", 65),
    Sketcher.Constraint("Vertical", 68),
    Sketcher.Constraint("Horizontal", 69),
    Sketcher.Constraint("Vertical", 70),
    Sketcher.Constraint("DistanceY", -1, 1, 25, 2, Q("40.2 mm")),
    Sketcher.Constraint("DistanceY", -1, 1, 63, 2, Q("40.2 mm")),
    Sketcher.Constraint("DistanceY", -1, 1, 68, 2, Q("40.2 mm")),
    Sketcher.Constraint("DistanceX", 1, 2, 8, 2, Q("1.3 mm")),
    Sketcher.Constraint("DistanceY", 30, 1, 30, 2, Q("0.275 mm")),
    Sketcher.Constraint("DistanceY", 61, 2, 65, 2, Q("1.33 mm")),
    Sketcher.Constraint("DistanceX", 62, 2, 62, 1, Q("1.2698 mm")),
    Sketcher.Constraint("DistanceX", 64, 1, 64, 2, Q("1.2472 mm")),
])
pocket1 = body.newObject("PartDesign::Pocket", "Pocket")
pocket1.Profile = sketch3
pocket1.Length = 0.3
pocket1.Reversed = True

doc.recompute()
